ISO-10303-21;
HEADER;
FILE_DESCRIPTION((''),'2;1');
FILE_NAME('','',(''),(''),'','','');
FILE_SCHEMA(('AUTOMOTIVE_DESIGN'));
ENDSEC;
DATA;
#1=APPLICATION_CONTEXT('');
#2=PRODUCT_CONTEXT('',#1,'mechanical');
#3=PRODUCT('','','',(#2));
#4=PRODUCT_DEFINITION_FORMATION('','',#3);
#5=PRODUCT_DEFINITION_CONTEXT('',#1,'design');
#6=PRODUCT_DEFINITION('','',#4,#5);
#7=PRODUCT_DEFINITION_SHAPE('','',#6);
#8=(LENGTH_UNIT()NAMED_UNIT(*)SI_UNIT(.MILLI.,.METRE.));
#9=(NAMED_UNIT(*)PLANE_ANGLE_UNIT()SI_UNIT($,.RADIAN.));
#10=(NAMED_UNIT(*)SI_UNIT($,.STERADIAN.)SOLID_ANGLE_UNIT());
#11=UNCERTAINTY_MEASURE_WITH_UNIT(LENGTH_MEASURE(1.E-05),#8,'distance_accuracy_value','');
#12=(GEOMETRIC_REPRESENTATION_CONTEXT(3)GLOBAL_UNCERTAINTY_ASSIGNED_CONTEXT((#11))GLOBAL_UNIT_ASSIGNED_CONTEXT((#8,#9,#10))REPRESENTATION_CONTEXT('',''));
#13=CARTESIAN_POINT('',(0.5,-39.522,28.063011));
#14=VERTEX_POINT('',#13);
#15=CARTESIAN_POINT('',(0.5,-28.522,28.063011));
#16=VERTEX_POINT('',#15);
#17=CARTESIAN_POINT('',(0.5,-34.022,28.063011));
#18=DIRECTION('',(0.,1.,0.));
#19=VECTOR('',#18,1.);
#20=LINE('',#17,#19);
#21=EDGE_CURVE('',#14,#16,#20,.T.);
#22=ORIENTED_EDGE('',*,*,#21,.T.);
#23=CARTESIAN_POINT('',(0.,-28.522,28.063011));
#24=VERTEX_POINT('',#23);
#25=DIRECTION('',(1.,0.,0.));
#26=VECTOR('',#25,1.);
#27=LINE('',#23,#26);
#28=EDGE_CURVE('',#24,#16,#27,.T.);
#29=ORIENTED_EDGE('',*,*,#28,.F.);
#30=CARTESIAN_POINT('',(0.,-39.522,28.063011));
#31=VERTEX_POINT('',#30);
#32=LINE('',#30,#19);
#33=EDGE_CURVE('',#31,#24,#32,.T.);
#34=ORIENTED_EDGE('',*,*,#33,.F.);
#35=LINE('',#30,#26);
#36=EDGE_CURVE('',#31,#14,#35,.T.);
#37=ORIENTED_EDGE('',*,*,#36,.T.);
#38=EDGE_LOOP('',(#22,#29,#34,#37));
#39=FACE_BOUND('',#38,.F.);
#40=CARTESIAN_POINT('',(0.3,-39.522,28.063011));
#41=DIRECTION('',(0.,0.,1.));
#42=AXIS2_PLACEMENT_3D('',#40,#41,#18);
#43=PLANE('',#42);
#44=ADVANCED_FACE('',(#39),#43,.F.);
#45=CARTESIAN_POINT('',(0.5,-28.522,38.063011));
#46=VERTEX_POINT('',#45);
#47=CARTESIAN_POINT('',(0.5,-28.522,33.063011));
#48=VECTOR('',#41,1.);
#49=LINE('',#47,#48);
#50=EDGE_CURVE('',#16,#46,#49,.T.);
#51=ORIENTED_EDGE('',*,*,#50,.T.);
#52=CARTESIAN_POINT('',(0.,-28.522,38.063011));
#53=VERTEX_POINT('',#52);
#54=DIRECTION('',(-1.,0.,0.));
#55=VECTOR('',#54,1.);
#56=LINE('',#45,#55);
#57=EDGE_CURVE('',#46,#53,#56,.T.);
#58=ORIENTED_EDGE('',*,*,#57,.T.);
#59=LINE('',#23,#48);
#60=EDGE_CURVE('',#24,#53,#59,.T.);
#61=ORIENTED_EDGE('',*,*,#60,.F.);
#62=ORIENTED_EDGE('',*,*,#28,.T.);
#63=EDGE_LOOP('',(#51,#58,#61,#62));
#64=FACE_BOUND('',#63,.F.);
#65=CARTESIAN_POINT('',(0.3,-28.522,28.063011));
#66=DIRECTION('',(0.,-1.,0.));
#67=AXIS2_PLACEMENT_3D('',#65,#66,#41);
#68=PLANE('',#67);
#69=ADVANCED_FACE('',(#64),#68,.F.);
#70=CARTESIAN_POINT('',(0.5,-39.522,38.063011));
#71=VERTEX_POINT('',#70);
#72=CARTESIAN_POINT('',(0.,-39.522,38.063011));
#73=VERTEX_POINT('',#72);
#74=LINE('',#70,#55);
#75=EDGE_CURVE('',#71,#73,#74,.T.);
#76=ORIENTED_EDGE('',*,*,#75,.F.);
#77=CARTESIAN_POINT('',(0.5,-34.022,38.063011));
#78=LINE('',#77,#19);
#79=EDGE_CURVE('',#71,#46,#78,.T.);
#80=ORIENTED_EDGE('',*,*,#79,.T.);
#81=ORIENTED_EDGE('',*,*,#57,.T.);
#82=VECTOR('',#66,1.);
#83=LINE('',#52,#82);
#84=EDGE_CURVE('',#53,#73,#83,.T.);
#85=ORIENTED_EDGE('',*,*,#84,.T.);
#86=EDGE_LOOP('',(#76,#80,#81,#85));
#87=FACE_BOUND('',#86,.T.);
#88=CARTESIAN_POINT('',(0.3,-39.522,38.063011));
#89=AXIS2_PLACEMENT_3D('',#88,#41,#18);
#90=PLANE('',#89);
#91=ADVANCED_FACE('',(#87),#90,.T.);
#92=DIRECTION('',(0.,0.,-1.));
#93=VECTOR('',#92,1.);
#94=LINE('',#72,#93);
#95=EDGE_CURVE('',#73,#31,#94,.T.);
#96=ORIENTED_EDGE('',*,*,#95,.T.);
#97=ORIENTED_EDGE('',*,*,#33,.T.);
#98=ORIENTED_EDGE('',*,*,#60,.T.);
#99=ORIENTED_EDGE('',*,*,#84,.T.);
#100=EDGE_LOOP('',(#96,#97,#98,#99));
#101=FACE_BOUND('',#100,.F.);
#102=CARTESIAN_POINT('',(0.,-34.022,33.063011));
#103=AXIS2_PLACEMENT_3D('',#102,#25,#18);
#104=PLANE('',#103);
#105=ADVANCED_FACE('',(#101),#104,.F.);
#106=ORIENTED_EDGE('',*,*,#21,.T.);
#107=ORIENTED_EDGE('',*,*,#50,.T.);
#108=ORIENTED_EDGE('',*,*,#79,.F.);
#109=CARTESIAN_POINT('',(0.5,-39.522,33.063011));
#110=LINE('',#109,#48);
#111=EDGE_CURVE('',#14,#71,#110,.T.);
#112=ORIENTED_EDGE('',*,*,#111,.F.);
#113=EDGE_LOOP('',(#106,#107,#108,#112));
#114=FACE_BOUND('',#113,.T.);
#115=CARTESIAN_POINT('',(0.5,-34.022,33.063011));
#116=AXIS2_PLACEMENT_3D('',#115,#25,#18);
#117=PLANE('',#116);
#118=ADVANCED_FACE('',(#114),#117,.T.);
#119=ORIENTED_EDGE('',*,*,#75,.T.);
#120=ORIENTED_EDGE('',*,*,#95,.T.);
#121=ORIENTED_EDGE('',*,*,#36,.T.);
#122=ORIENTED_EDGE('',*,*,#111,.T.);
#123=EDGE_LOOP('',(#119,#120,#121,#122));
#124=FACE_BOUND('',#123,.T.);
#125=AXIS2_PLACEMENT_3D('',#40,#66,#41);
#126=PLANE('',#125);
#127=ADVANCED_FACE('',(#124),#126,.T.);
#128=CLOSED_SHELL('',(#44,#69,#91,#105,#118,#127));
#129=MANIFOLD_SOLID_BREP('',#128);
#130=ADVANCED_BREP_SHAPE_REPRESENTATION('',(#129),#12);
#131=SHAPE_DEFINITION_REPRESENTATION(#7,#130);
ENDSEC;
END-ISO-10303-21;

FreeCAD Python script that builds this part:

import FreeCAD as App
import Part
import Sketcher
from FreeCAD import Vector

doc = App.newDocument("Part")
params = doc.addObject("Spreadsheet::Sheet", "Params")
for row, (alias, value) in enumerate([
    ("sketch1_width", "11 mm"),
    ("sketch1_height", "10 mm"),
    ("pad1_length", "0.3 mm"),
    ("sketch2_width", "11 mm"),
    ("sketch2_height", "10 mm"),
    ("pad2_length", "0.2 mm"),
], start=1):
    params.set(f"A{row}", alias)
    params.set(f"B{row}", "=" + value)
    params.setAlias(f"B{row}", alias)

body = doc.addObject("PartDesign::Body", "Body")

sketch1 = body.newObject("Sketcher::SketchObject", "Sketch")
sketch1.AttachmentSupport = (doc.getObject("YZ_Plane"), [""])
sketch1.MapMode = "FlatFace"
sketch1.addGeometry(Part.LineSegment(Vector(-39.522, 38.063011, 0), Vector(-39.522, 28.063011, 0)), False)
sketch1.addGeometry(Part.LineSegment(Vector(-39.522, 28.063011, 0), Vector(-28.522, 28.063011, 0)), False)
sketch1.addGeometry(Part.LineSegment(Vector(-28.522, 28.063011, 0), Vector(-28.522, 38.063011, 0)), False)
sketch1.addGeometry(Part.LineSegment(Vector(-28.522, 38.063011, 0), Vector(-39.522, 38.063011, 0)), False)
sketch1.addConstraint(Sketcher.Constraint("Coincident", 0, 2, 1, 1))
sketch1.addConstraint(Sketcher.Constraint("Coincident", 1, 2, 2, 1))
sketch1.addConstraint(Sketcher.Constraint("Coincident", 2, 2, 3, 1))
sketch1.addConstraint(Sketcher.Constraint("Coincident", 3, 2, 0, 1))
sketch1.addConstraint(Sketcher.Constraint("Vertical", 0))
sketch1.addConstraint(Sketcher.Constraint("Horizontal", 1))
sketch1.addConstraint(Sketcher.Constraint("Vertical", 2))
sketch1.addConstraint(Sketcher.Constraint("Horizontal", 3))
sketch1.addConstraint(Sketcher.Constraint("DistanceX", 1, 1, 1, 2, 11.0))
sketch1.addConstraint(Sketcher.Constraint("DistanceY", 0, 2, 0, 1, 10.0))
sketch1.addConstraint(Sketcher.Constraint("DistanceX", 0, 2, -1, 1, 39.522))
sketch1.addConstraint(Sketcher.Constraint("DistanceY", -1, 1, 0, 2, 28.063011))
sketch1.setExpression("Constraints[8]", "Params.sketch1_width")
sketch1.setExpression("Constraints[9]", "Params.sketch1_height")
pad1 = body.newObject("PartDesign::Pad", "Pad")
pad1.Profile = sketch1
pad1.setExpression("Length", "Params.pad1_length")

sketch2 = body.newObject("Sketcher::SketchObject", "Sketch001")
sketch2.AttachmentSupport = (doc.getObject("YZ_Plane"), [""])
sketch2.MapMode = "FlatFace"
sketch2.AttachmentOffset = App.Placement(Vector(0, 0, 0.3), App.Rotation())
sketch2.addGeometry(Part.LineSegment(Vector(-39.522, 38.063011, 0), Vector(-39.522, 28.063011, 0)), False)
sketch2.addGeometry(Part.LineSegment(Vector(-39.522, 28.063011, 0), Vector(-28.522, 28.063011, 0)), False)
sketch2.addGeometry(Part.LineSegment(Vector(-28.522, 28.063011, 0), Vector(-28.522, 38.063011, 0)), False)
sketch2.addGeometry(Part.LineSegment(Vector(-28.522, 38.063011, 0), Vector(-39.522, 38.063011, 0)), False)
sketch2.addConstraint(Sketcher.Constraint("Coincident", 0, 2, 1, 1))
sketch2.addConstraint(Sketcher.Constraint("Coincident", 1, 2, 2, 1))
sketch2.addConstraint(Sketcher.Constraint("Coincident", 2, 2, 3, 1))
sketch2.addConstraint(Sketcher.Constraint("Coincident", 3, 2, 0, 1))
sketch2.addConstraint(Sketcher.Constraint("Vertical", 0))
sketch2.addConstraint(Sketcher.Constraint("Horizontal", 1))
sketch2.addConstraint(Sketcher.Constraint("Vertical", 2))
sketch2.addConstraint(Sketcher.Constraint("Horizontal", 3))
sketch2.addConstraint(Sketcher.Constraint("DistanceX", 1, 1, 1, 2, 11.0))
sketch2.addConstraint(Sketcher.Constraint("DistanceY", 0, 2, 0, 1, 10.0))
sketch2.addConstraint(Sketcher.Constraint("DistanceX", 0, 2, -1, 1, 39.522))
sketch2.addConstraint(Sketcher.Constraint("DistanceY", -1, 1, 0, 2, 28.063011))
sketch2.setExpression("Constraints[8]", "Params.sketch2_width")
sketch2.setExpression("Constraints[9]", "Params.sketch2_height")
pad2 = body.newObject("PartDesign::Pad", "Pad001")
pad2.Profile = sketch2
pad2.setExpression("Length", "Params.pad2_length")

doc.recompute()
